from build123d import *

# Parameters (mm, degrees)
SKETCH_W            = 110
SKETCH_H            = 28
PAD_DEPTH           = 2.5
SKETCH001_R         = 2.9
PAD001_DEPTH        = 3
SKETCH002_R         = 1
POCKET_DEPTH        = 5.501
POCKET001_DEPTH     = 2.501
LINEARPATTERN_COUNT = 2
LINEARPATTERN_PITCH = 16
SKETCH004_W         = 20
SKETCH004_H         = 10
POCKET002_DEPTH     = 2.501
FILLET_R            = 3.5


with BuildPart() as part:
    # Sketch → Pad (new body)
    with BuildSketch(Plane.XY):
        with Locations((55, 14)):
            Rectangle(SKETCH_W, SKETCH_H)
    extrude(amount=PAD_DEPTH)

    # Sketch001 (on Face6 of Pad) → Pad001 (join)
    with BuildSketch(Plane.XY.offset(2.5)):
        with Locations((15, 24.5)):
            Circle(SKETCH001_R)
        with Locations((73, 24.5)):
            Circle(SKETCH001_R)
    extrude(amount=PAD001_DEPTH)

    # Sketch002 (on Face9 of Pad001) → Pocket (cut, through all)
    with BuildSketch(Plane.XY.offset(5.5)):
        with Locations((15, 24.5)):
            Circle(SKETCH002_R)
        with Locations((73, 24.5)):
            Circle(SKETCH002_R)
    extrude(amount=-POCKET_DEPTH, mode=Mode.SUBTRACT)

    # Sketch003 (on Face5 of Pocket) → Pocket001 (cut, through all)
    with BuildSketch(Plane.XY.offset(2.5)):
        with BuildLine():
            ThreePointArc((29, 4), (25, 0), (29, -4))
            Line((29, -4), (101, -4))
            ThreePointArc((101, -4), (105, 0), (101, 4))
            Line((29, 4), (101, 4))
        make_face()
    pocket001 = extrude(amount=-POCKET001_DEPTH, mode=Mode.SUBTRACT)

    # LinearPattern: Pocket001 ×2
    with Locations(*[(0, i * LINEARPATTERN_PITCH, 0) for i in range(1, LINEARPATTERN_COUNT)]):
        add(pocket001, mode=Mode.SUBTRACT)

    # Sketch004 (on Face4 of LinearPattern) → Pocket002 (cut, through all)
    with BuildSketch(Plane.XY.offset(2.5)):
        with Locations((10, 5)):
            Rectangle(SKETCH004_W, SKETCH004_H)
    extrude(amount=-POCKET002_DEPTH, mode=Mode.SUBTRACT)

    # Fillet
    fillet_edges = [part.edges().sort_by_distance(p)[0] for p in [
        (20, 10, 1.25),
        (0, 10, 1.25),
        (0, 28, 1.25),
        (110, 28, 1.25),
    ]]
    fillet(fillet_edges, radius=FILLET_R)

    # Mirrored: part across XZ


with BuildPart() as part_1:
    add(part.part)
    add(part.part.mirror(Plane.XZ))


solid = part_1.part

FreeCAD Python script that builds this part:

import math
import FreeCAD as App
import Part
import Sketcher

V = App.Vector


def edges_at(feature, points):
    """Names of the edges that pass closest to the given points."""
    edges = feature.Shape.Edges
    near = lambda p: min(range(len(edges)), key=lambda i: edges[i].distToShape(Part.Vertex(*p))[0])
    return sorted({f"Edge{near(p) + 1}" for p in points})

doc = App.newDocument("Part")
body = doc.addObject("PartDesign::Body", "Body")

# Sketch on XY plane
sketch1 = body.newObject("Sketcher::SketchObject", "Sketch")
sketch1.AttachmentSupport = (doc.getObject("XY_Plane"), [""])
sketch1.MapMode = "FlatFace"
sketch1.addGeometry([
    Part.LineSegment(V(0, 28, 0), V(0, 0, 0)),
    Part.LineSegment(V(0, 0, 0), V(110, 0, 0)),
    Part.LineSegment(V(110, 0, 0), V(110, 28, 0)),
    Part.LineSegment(V(110, 28, 0), V(0, 28, 0)),
], False)
sketch1.addConstraint([
    Sketcher.Constraint("Coincident", 0, 2, 1, 1),
    Sketcher.Constraint("Coincident", 1, 2, 2, 1),
    Sketcher.Constraint("Coincident", 2, 2, 3, 1),
    Sketcher.Constraint("Coincident", 3, 2, 0, 1),
    Sketcher.Constraint("Vertical", 0),
    Sketcher.Constraint("Horizontal", 1),
    Sketcher.Constraint("Vertical", 2),
    Sketcher.Constraint("Horizontal", 3),
    Sketcher.Constraint("Coincident", 0, 2, -1, 1),
    Sketcher.Constraint("DistanceX", 1, 1, 1, 2, 110.0),
    Sketcher.Constraint("DistanceY", 0, 2, 0, 1, 28.0),
])
pad1 = body.newObject("PartDesign::Pad", "Pad")
pad1.Profile = sketch1
pad1.Length = 2.5

# Sketch on XY plane
sketch2 = body.newObject("Sketcher::SketchObject", "Sketch001")
sketch2.AttachmentSupport = (doc.getObject("XY_Plane"), [""])
sketch2.MapMode = "FlatFace"
sketch2.AttachmentOffset = App.Placement(V(0, 0, 2.5), App.Rotation())
sketch2.addGeometry([
    Part.Circle(V(15, 24.5, 0), V(0, 0, 1), 2.9),
    Part.Circle(V(73, 24.5, 0), V(0, 0, 1), 2.9),
], False)
sketch2.addConstraint([
    Sketcher.Constraint("Equal", 0, 1),
    Sketcher.Constraint("Horizontal", 0, 3, 1, 3),
    Sketcher.Constraint("Diameter", 0, 5.8),
    Sketcher.Constraint("DistanceX", -1, 1, 0, 3, 15.0),
    Sketcher.Constraint("DistanceX", -1, 1, 1, 3, 73.0),
    Sketcher.Constraint("DistanceY", -1, 1, 0, 3, 24.5),
])
pad2 = body.newObject("PartDesign::Pad", "Pad001")
pad2.Profile = sketch2
pad2.Length = 3

# Sketch on XY plane
sketch3 = body.newObject("Sketcher::SketchObject", "Sketch002")
sketch3.AttachmentSupport = (doc.getObject("XY_Plane"), [""])
sketch3.MapMode = "FlatFace"
sketch3.AttachmentOffset = App.Placement(V(0, 0, 5.5), App.Rotation())
sketch3.addGeometry([
    Part.Circle(V(15, 24.5, 0), V(0, 0, 1), 1),
    Part.Circle(V(73, 24.5, 0), V(0, 0, 1), 1),
], False)
sketch3.addConstraint([
    Sketcher.Constraint("Equal", 0, 1),
    Sketcher.Constraint("Horizontal", 0, 3, 1, 3),
    Sketcher.Constraint("Diameter", 0, 2.0),
    Sketcher.Constraint("DistanceX", -1, 1, 0, 3, 15.0),
    Sketcher.Constraint("DistanceX", -1, 1, 1, 3, 73.0),
    Sketcher.Constraint("DistanceY", -1, 1, 0, 3, 24.5),
])
pocket1 = body.newObject("PartDesign::Pocket", "Pocket")
pocket1.Profile = sketch3
pocket1.Type = "ThroughAll"

# Sketch on XY plane
sketch4 = body.newObject("Sketcher::SketchObject", "Sketch003")
sketch4.AttachmentSupport = (doc.getObject("XY_Plane"), [""])
sketch4.MapMode = "FlatFace"
sketch4.AttachmentOffset = App.Placement(V(0, 0, 2.5), App.Rotation())
sketch4.addGeometry([
    Part.ArcOfCircle(Part.Circle(V(29, 0, 0), V(0, 0, 1), 4), math.radians(90), math.radians(270)),
    Part.LineSegment(V(29, -4, 0), V(101, -4, 0)),
    Part.ArcOfCircle(Part.Circle(V(101, 0, 0), V(0, 0, 1), 4), math.radians(-90), math.radians(90)),
    Part.LineSegment(V(101, 4, 0), V(29, 4, 0)),
], False)
sketch4.addConstraint([
    Sketcher.Constraint("Tangent", 0, 2, 1, 1),
    Sketcher.Constraint("Tangent", 1, 2, 2, 1),
    Sketcher.Constraint("Tangent", 2, 2, 3, 1),
    Sketcher.Constraint("Tangent", 3, 2, 0, 1),
    Sketcher.Constraint("Horizontal", 1),
    Sketcher.Constraint("Horizontal", 3),
    Sketcher.Constraint("PointOnObject", 0, 3, -1),
    Sketcher.Constraint("Radius", 0, 4.0),
    Sketcher.Constraint("DistanceX", 1, 1, 1, 2, 72.0),
    Sketcher.Constraint("DistanceX", -1, 1, 0, 3, 29.0),
])
pocket2 = body.newObject("PartDesign::Pocket", "Pocket001")
pocket2.Profile = sketch4
pocket2.Type = "ThroughAll"
doc.recompute()

linearpattern = body.newObject("PartDesign::LinearPattern", "LinearPattern")
linearpattern.Originals = [pocket2]
linearpattern.Direction = (doc.getObject("Y_Axis"), [""])
linearpattern.Mode = "offset"
linearpattern.Offset = 16
linearpattern.Occurrences = 2
body.Tip = linearpattern

# Sketch on XY plane
sketch5 = body.newObject("Sketcher::SketchObject", "Sketch004")
sketch5.AttachmentSupport = (doc.getObject("XY_Plane"), [""])
sketch5.MapMode = "FlatFace"
sketch5.AttachmentOffset = App.Placement(V(0, 0, 2.5), App.Rotation())
sketch5.addGeometry([
    Part.LineSegment(V(0, 10, 0), V(0, 0, 0)),
    Part.LineSegment(V(0, 0, 0), V(20, 0, 0)),
    Part.LineSegment(V(20, 0, 0), V(20, 10, 0)),
    Part.LineSegment(V(20, 10, 0), V(0, 10, 0)),
], False)
sketch5.addConstraint([
    Sketcher.Constraint("Coincident", 0, 2, 1, 1),
    Sketcher.Constraint("Coincident", 1, 2, 2, 1),
    Sketcher.Constraint("Coincident", 2, 2, 3, 1),
    Sketcher.Constraint("Coincident", 3, 2, 0, 1),
    Sketcher.Constraint("Vertical", 0),
    Sketcher.Constraint("Horizontal", 1),
    Sketcher.Constraint("Vertical", 2),
    Sketcher.Constraint("Horizontal", 3),
    Sketcher.Constraint("Coincident", 0, 2, -1, 1),
    Sketcher.Constraint("DistanceX", 1, 1, 1, 2, 20.0),
    Sketcher.Constraint("DistanceY", 0, 2, 0, 1, 10.0),
])
pocket3 = body.newObject("PartDesign::Pocket", "Pocket002")
pocket3.Profile = sketch5
pocket3.Type = "ThroughAll"
doc.recompute()

fillet = body.newObject("PartDesign::Fillet", "Fillet")
fillet.Base = (pocket3, edges_at(pocket3, [
    (20, 10, 1.25),
    (0, 10, 1.25),
    (0, 28, 1.25),
    (110, 28, 1.25),
]))
fillet.Radius = 3.5
body2 = doc.addObject("PartDesign::Body", "Body001")
doc.recompute()

body2.BaseFeature = body
doc.recompute()

mirroring = doc.addObject("Part::Mirroring", "Mirroring")
mirroring.Source = body
mirroring.Base = V(0, 0, 0)
mirroring.Normal = V(0, -1, 0)
body3 = doc.addObject("PartDesign::Body", "Body002")
body3.BaseFeature = mirroring
boolean = body2.newObject("PartDesign::Boolean", "Boolean")
boolean.Type = "Fuse"
boolean.addObjects([body3])
doc.recompute()
mirroring.Visibility = False

doc.recompute()
